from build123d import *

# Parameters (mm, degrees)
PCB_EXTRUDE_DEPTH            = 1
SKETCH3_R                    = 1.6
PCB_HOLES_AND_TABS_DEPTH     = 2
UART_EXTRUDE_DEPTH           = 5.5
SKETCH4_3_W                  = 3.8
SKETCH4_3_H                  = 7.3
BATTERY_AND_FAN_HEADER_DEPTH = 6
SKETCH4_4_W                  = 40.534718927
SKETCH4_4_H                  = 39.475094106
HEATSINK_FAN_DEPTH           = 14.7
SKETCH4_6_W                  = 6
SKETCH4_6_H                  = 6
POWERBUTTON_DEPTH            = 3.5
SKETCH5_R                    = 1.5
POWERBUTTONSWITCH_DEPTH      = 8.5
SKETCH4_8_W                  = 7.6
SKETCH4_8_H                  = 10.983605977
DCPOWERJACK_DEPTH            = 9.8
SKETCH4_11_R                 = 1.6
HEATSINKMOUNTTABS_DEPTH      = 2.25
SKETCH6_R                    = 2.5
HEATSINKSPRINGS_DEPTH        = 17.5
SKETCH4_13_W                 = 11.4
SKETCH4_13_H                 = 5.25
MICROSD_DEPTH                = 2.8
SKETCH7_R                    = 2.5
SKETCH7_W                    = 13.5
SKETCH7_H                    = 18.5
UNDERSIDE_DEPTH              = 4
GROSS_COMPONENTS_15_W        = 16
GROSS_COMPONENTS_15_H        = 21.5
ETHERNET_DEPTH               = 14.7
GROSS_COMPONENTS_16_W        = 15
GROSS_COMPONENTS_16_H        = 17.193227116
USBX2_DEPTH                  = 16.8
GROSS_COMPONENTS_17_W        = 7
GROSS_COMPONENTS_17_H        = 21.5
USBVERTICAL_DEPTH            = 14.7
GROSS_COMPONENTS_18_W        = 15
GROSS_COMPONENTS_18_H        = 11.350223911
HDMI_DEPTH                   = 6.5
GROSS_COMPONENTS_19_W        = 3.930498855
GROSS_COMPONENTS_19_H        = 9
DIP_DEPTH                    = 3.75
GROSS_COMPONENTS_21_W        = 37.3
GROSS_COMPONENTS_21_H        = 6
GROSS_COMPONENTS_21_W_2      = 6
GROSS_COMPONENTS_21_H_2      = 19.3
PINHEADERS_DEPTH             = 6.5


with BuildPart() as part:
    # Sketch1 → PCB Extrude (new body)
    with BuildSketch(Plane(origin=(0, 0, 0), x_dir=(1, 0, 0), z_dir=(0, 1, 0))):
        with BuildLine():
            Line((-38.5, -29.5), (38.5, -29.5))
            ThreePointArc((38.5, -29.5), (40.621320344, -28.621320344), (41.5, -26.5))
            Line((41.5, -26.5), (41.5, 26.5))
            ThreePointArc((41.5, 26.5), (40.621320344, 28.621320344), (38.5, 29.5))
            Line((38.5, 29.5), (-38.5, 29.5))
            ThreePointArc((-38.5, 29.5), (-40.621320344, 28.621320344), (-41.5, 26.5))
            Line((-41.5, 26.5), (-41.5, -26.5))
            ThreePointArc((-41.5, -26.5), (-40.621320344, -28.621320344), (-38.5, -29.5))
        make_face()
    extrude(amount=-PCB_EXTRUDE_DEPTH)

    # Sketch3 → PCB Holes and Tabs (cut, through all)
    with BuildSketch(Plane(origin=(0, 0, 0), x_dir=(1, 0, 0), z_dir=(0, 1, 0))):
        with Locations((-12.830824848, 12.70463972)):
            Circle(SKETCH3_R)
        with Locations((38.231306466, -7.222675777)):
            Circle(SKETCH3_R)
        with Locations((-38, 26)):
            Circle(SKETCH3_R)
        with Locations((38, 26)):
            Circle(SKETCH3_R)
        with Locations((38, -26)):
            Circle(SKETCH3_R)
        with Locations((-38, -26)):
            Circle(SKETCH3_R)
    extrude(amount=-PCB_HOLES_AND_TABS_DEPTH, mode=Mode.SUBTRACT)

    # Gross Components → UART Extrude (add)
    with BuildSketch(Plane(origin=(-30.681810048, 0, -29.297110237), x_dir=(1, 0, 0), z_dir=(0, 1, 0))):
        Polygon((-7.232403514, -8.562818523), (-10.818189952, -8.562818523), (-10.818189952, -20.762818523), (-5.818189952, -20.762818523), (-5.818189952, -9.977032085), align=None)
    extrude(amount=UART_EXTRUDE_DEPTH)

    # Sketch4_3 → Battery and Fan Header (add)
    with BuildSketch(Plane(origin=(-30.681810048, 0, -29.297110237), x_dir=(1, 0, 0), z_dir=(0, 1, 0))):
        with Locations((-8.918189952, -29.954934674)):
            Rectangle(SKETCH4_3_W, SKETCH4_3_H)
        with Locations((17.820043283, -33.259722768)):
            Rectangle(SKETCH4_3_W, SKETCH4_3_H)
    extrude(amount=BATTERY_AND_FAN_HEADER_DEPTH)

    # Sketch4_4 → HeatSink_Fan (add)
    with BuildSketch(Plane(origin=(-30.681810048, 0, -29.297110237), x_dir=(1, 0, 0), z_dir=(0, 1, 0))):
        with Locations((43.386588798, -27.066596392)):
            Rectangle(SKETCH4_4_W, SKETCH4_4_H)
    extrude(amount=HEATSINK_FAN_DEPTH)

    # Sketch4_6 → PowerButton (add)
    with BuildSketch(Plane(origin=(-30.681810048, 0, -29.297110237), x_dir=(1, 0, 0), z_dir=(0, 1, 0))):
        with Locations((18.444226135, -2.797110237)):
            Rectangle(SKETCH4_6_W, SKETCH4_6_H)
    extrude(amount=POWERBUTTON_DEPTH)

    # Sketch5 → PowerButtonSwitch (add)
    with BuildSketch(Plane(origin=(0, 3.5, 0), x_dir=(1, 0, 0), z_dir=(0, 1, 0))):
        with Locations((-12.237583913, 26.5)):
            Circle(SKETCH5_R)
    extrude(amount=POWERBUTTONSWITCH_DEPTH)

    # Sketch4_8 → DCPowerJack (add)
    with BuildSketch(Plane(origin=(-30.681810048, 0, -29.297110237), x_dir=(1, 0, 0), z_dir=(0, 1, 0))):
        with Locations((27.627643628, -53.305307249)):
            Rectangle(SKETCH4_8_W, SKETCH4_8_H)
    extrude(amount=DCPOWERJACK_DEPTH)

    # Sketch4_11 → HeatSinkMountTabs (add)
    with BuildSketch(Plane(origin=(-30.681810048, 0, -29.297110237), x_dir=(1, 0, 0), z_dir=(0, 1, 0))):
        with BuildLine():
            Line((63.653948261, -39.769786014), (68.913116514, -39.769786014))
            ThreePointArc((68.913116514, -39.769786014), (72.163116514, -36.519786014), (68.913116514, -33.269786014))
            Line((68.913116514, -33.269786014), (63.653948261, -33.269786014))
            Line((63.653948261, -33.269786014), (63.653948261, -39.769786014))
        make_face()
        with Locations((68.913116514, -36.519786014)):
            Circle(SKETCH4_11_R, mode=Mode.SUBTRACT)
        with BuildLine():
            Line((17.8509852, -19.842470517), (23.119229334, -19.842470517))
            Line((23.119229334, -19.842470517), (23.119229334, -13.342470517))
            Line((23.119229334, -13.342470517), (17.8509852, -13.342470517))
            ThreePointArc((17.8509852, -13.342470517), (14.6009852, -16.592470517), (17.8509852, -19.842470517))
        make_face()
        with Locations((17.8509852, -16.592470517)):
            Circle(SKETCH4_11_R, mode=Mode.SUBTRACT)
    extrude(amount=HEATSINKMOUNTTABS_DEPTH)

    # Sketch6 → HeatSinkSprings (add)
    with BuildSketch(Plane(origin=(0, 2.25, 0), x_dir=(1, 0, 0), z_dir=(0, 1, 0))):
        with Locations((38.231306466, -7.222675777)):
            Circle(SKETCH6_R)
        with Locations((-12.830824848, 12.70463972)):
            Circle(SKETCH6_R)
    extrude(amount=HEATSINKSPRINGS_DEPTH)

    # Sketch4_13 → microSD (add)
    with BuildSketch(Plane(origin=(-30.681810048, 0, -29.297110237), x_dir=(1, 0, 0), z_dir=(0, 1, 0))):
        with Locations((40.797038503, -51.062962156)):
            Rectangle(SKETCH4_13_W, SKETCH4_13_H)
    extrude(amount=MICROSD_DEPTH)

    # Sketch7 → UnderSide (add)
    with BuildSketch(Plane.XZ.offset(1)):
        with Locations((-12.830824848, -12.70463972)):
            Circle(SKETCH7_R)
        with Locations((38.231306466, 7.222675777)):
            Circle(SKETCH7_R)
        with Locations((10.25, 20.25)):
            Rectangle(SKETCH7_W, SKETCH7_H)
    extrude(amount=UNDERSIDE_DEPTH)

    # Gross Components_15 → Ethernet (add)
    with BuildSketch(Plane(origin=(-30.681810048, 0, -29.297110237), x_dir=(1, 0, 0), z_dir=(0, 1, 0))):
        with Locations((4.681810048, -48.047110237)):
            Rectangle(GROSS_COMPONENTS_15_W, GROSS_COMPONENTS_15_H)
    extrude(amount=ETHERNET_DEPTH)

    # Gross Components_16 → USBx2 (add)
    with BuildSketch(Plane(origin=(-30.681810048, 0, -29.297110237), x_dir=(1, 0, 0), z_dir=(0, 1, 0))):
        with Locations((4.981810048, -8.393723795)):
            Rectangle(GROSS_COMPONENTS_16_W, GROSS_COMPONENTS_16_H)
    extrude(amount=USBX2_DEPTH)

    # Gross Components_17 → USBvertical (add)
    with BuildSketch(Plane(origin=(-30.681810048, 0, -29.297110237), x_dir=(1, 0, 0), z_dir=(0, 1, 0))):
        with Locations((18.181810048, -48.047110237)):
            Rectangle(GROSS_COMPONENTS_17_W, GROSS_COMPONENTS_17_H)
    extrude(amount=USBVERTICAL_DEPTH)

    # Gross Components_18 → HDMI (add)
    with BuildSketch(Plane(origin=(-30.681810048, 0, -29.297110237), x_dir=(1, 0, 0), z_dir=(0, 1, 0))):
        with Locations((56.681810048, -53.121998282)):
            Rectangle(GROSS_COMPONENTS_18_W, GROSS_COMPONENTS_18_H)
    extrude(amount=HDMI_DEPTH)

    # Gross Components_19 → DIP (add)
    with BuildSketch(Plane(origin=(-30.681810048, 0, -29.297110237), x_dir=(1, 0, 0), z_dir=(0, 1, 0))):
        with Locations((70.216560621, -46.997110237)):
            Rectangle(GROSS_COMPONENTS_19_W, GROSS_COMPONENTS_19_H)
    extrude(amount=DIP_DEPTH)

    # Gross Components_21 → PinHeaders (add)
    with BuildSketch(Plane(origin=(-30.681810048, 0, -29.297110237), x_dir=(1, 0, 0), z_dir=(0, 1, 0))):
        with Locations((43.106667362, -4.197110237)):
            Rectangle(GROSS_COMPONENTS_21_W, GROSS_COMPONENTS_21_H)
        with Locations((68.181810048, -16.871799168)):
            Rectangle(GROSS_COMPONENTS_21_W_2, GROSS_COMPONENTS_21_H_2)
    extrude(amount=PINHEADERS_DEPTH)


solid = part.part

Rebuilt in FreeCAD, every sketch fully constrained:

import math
import FreeCAD as App
import Part
import Sketcher

V = App.Vector
Q = App.Units.Quantity

doc = App.newDocument("Part")
body = doc.addObject("PartDesign::Body", "Body")

# Sketch on XZ plane
sketch1 = doc.addObject("Sketcher::SketchObject", "Sketch")
body.addObject(sketch1)
sketch1.AttachmentSupport = (doc.XZ_Plane, [""])
sketch1.MapMode = "FlatFace"
sketch1.addGeometry(Part.LineSegment(V(-38.5, 29.5, 0), V(38.5, 29.5, 0)), False)
sketch1.addGeometry(Part.ArcOfCircle(Part.Circle(V(38.5, 26.5, 0), V(0, 0, 1), 3), math.radians(0), math.radians(90)), False)
sketch1.addGeometry(Part.LineSegment(V(41.5, 26.5, 0), V(41.5, -26.5, 0)), False)
sketch1.addGeometry(Part.ArcOfCircle(Part.Circle(V(38.5, -26.5, 0), V(0, 0, 1), 3), math.radians(-90), math.radians(0)), False)
sketch1.addGeometry(Part.LineSegment(V(38.5, -29.5, 0), V(-38.5, -29.5, 0)), False)
sketch1.addGeometry(Part.ArcOfCircle(Part.Circle(V(-38.5, -26.5, 0), V(0, 0, 1), 3), math.radians(180), math.radians(270)), False)
sketch1.addGeometry(Part.LineSegment(V(-41.5, -26.5, 0), V(-41.5, 26.5, 0)), False)
sketch1.addGeometry(Part.ArcOfCircle(Part.Circle(V(-38.5, 26.5, 0), V(0, 0, 1), 3), math.radians(90), math.radians(180)), False)
sketch1.addConstraint(Sketcher.Constraint("Tangent", 0, 2, 1, 2))
sketch1.addConstraint(Sketcher.Constraint("Tangent", 1, 1, 2, 1))
sketch1.addConstraint(Sketcher.Constraint("Tangent", 2, 2, 3, 2))
sketch1.addConstraint(Sketcher.Constraint("Tangent", 3, 1, 4, 1))
sketch1.addConstraint(Sketcher.Constraint("Tangent", 4, 2, 5, 2))
sketch1.addConstraint(Sketcher.Constraint("Tangent", 5, 1, 6, 1))
sketch1.addConstraint(Sketcher.Constraint("Tangent", 6, 2, 7, 2))
sketch1.addConstraint(Sketcher.Constraint("Tangent", 7, 1, 0, 1))
sketch1.addConstraint(Sketcher.Constraint("Horizontal", 0))
sketch1.addConstraint(Sketcher.Constraint("Vertical", 2))
sketch1.addConstraint(Sketcher.Constraint("Horizontal", 4))
sketch1.addConstraint(Sketcher.Constraint("Vertical", 6))
sketch1.addConstraint(Sketcher.Constraint("Equal", 1, 3))
sketch1.addConstraint(Sketcher.Constraint("Equal", 3, 5))
sketch1.addConstraint(Sketcher.Constraint("Equal", 5, 7))
sketch1.addConstraint(Sketcher.Constraint("Symmetric", 1, 3, 5, 3, -1, 1))
sketch1.addConstraint(Sketcher.Constraint("Radius", 1, 3.0))
sketch1.addConstraint(Sketcher.Constraint("DistanceX", 0, 1, 0, 2, 77.0))
sketch1.addConstraint(Sketcher.Constraint("DistanceY", 2, 2, 2, 1, 53.0))
pad1 = doc.addObject("PartDesign::Pad", "Pad")
body.addObject(pad1)
pad1.Profile = sketch1
pad1.Length = 1

# Sketch on XZ plane
sketch2 = doc.addObject("Sketcher::SketchObject", "Sketch001")
body.addObject(sketch2)
sketch2.AttachmentSupport = (doc.XZ_Plane, [""])
sketch2.MapMode = "FlatFace"
sketch2.addGeometry(Part.Circle(V(-12.8, -12.7, 0), V(0, 0, 1), 1.6), False)
sketch2.addGeometry(Part.Circle(V(38.2, 7.2, 0), V(0, 0, 1), 1.6), False)
sketch2.addGeometry(Part.Circle(V(-38, -26, 0), V(0, 0, 1), 1.6), False)
sketch2.addGeometry(Part.Circle(V(38, -26, 0), V(0, 0, 1), 1.6), False)
sketch2.addGeometry(Part.Circle(V(38, 26, 0), V(0, 0, 1), 1.6), False)
sketch2.addGeometry(Part.Circle(V(-38, 26, 0), V(0, 0, 1), 1.6), False)
sketch2.addConstraint(Sketcher.Constraint("Equal", 0, 1))
sketch2.addConstraint(Sketcher.Constraint("Equal", 1, 2))
sketch2.addConstraint(Sketcher.Constraint("Equal", 2, 3))
sketch2.addConstraint(Sketcher.Constraint("Equal", 3, 4))
sketch2.addConstraint(Sketcher.Constraint("Equal", 4, 5))
sketch2.addConstraint(Sketcher.Constraint("Symmetric", 2, 3, 4, 3, -1, 1))
sketch2.addConstraint(Sketcher.Constraint("Symmetric", 3, 3, 5, 3, -1, 1))
sketch2.addConstraint(Sketcher.Constraint("Symmetric", 2, 3, 3, 3, -2))
sketch2.addConstraint(Sketcher.Constraint("Diameter", 0, 3.2))
sketch2.addConstraint(Sketcher.Constraint("DistanceX", 2, 3, -1, 1, 38.0))
sketch2.addConstraint(Sketcher.Constraint("DistanceY", 2, 3, -1, 1, 26.0))
sketch2.addConstraint(Sketcher.Constraint("DistanceY", 0, 3, -1, 1, 12.70464))
sketch2.addConstraint(Sketcher.Constraint("DistanceX", 0, 3, 1, 3, 51.062131))
sketch2.addConstraint(Sketcher.Constraint("DistanceX", 0, 3, -1, 1, 12.830825))
sketch2.addConstraint(Sketcher.Constraint("DistanceY", -1, 1, 1, 3, 7.222676))
pocket1 = doc.addObject("PartDesign::Pocket", "Pocket")
body.addObject(pocket1)
pocket1.Profile = sketch2
pocket1.Type = "ThroughAll"
pocket1.Reversed = True

# Sketch on XZ plane
sketch3 = doc.addObject("Sketcher::SketchObject", "Sketch002")
body.addObject(sketch3)
sketch3.AttachmentSupport = (doc.XZ_Plane, [""])
sketch3.MapMode = "FlatFace"
sketch3.addGeometry(Part.LineSegment(V(-37.9, -20.7, 0), V(-41.5, -20.7, 0)), False)
sketch3.addGeometry(Part.LineSegment(V(-41.5, -20.7, 0), V(-41.5, -8.5, 0)), False)
sketch3.addGeometry(Part.LineSegment(V(-41.5, -8.5, 0), V(-36.5, -8.5, 0)), False)
sketch3.addGeometry(Part.LineSegment(V(-36.5, -8.5, 0), V(-36.5, -19.3, 0)), False)
sketch3.addGeometry(Part.LineSegment(V(-36.5, -19.3, 0), V(-37.9, -20.7, 0)), False)
sketch3.addConstraint(Sketcher.Constraint("Coincident", 0, 2, 1, 1))
sketch3.addConstraint(Sketcher.Constraint("Coincident", 1, 2, 2, 1))
sketch3.addConstraint(Sketcher.Constraint("Coincident", 2, 2, 3, 1))
sketch3.addConstraint(Sketcher.Constraint("Coincident", 3, 2, 4, 1))
sketch3.addConstraint(Sketcher.Constraint("Coincident", 4, 2, 0, 1))
sketch3.addConstraint(Sketcher.Constraint("Horizontal", 0))
sketch3.addConstraint(Sketcher.Constraint("Vertical", 1))
sketch3.addConstraint(Sketcher.Constraint("Horizontal", 2))
sketch3.addConstraint(Sketcher.Constraint("Vertical", 3))
sketch3.addConstraint(Sketcher.Constraint("DistanceX", 2, 1, 2, 2, 5.0))
sketch3.addConstraint(Sketcher.Constraint("Angle", 4, Q("-135 deg")))
sketch3.addConstraint(Sketcher.Constraint("Distance", 4, 2.0))
sketch3.addConstraint(Sketcher.Constraint("DistanceY", 1, 1, 1, 2, 12.2))
sketch3.addConstraint(Sketcher.Constraint("DistanceX", 0, 2, -1, 1, 41.5))
sketch3.addConstraint(Sketcher.Constraint("DistanceY", 0, 2, -1, 1, 20.734292))
pad2 = doc.addObject("PartDesign::Pad", "Pad001")
body.addObject(pad2)
pad2.Profile = sketch3
pad2.Length = 5.5
pad2.Reversed = True

# Sketch on XZ plane
sketch4 = doc.addObject("Sketcher::SketchObject", "Sketch003")
body.addObject(sketch4)
sketch4.AttachmentSupport = (doc.XZ_Plane, [""])
sketch4.MapMode = "FlatFace"
sketch4.addGeometry(Part.LineSegment(V(-41.5, -3, 0), V(-41.5, 4.3, 0)), False)
sketch4.addGeometry(Part.LineSegment(V(-41.5, 4.3, 0), V(-37.7, 4.3, 0)), False)
sketch4.addGeometry(Part.LineSegment(V(-37.7, 4.3, 0), V(-37.7, -3, 0)), False)
sketch4.addGeometry(Part.LineSegment(V(-37.7, -3, 0), V(-41.5, -3, 0)), False)
sketch4.addGeometry(Part.LineSegment(V(-14.8, 0.3, 0), V(-14.8, 7.6, 0)), False)
sketch4.addGeometry(Part.LineSegment(V(-14.8, 7.6, 0), V(-11, 7.6, 0)), False)
sketch4.addGeometry(Part.LineSegment(V(-11, 7.6, 0), V(-11, 0.3, 0)), False)
sketch4.addGeometry(Part.LineSegment(V(-11, 0.3, 0), V(-14.8, 0.3, 0)), False)
sketch4.addConstraint(Sketcher.Constraint("Coincident", 0, 2, 1, 1))
sketch4.addConstraint(Sketcher.Constraint("Coincident", 1, 2, 2, 1))
sketch4.addConstraint(Sketcher.Constraint("Coincident", 2, 2, 3, 1))
sketch4.addConstraint(Sketcher.Constraint("Coincident", 3, 2, 0, 1))
sketch4.addConstraint(Sketcher.Constraint("Coincident", 4, 2, 5, 1))
sketch4.addConstraint(Sketcher.Constraint("Coincident", 5, 2, 6, 1))
sketch4.addConstraint(Sketcher.Constraint("Coincident", 6, 2, 7, 1))
sketch4.addConstraint(Sketcher.Constraint("Coincident", 7, 2, 4, 1))
sketch4.addConstraint(Sketcher.Constraint("Vertical", 0))
sketch4.addConstraint(Sketcher.Constraint("Horizontal", 1))
sketch4.addConstraint(Sketcher.Constraint("Vertical", 2))
sketch4.addConstraint(Sketcher.Constraint("Horizontal", 3))
sketch4.addConstraint(Sketcher.Constraint("Vertical", 4))
sketch4.addConstraint(Sketcher.Constraint("Horizontal", 5))
sketch4.addConstraint(Sketcher.Constraint("Vertical", 6))
sketch4.addConstraint(Sketcher.Constraint("Horizontal", 7))
sketch4.addConstraint(Sketcher.Constraint("Equal", 3, 5))
sketch4.addConstraint(Sketcher.Constraint("Equal", 2, 4))
sketch4.addConstraint(Sketcher.Constraint("DistanceX", 1, 1, 1, 2, 3.8))
sketch4.addConstraint(Sketcher.Constraint("DistanceY", 0, 1, 0, 2, 7.3))
sketch4.addConstraint(Sketcher.Constraint("DistanceX", 0, 2, -1, 1, 41.5))
sketch4.addConstraint(Sketcher.Constraint("DistanceY", 1, 2, 4, 2, 3.304788))
sketch4.addConstraint(Sketcher.Constraint("DistanceY", -1, 1, 0, 2, 4.307824))
sketch4.addConstraint(Sketcher.Constraint("DistanceX", 4, 2, -1, 1, 14.761767))
pad3 = doc.addObject("PartDesign::Pad", "Pad002")
body.addObject(pad3)
pad3.Profile = sketch4
pad3.Length = 6
pad3.Reversed = True

# Sketch on XZ plane
sketch5 = doc.addObject("Sketcher::SketchObject", "Sketch004")
body.addObject(sketch5)
sketch5.AttachmentSupport = (doc.XZ_Plane, [""])
sketch5.MapMode = "FlatFace"
sketch5.addGeometry(Part.LineSegment(V(-8, -22, 0), V(-8, 18, 0)), False)
sketch5.addGeometry(Part.LineSegment(V(-8, 18, 0), V(33, 18, 0)), False)
sketch5.addGeometry(Part.LineSegment(V(33, 18, 0), V(33, -22, 0)), False)
sketch5.addGeometry(Part.LineSegment(V(33, -22, 0), V(-8, -22, 0)), False)
sketch5.addConstraint(Sketcher.Constraint("Coincident", 0, 2, 1, 1))
sketch5.addConstraint(Sketcher.Constraint("Coincident", 1, 2, 2, 1))
sketch5.addConstraint(Sketcher.Constraint("Coincident", 2, 2, 3, 1))
sketch5.addConstraint(Sketcher.Constraint("Coincident", 3, 2, 0, 1))
sketch5.addConstraint(Sketcher.Constraint("Vertical", 0))
sketch5.addConstraint(Sketcher.Constraint("Horizontal", 1))
sketch5.addConstraint(Sketcher.Constraint("Vertical", 2))
sketch5.addConstraint(Sketcher.Constraint("Horizontal", 3))
sketch5.addConstraint(Sketcher.Constraint("DistanceX", 1, 1, 1, 2, 40.534719))
sketch5.addConstraint(Sketcher.Constraint("DistanceY", 0, 1, 0, 2, 39.475094))
sketch5.addConstraint(Sketcher.Constraint("DistanceX", 0, 2, -1, 1, 7.562581))
sketch5.addConstraint(Sketcher.Constraint("DistanceY", 2, 2, -1, 1, 21.968061))
pad4 = doc.addObject("PartDesign::Pad", "Pad003")
body.addObject(pad4)
pad4.Profile = sketch5
pad4.Length = 14.7
pad4.Reversed = True

# Sketch on XZ plane
sketch6 = doc.addObject("Sketcher::SketchObject", "Sketch005")
body.addObject(sketch6)
sketch6.AttachmentSupport = (doc.XZ_Plane, [""])
sketch6.MapMode = "FlatFace"
sketch6.addGeometry(Part.LineSegment(V(-15, -30, 0), V(-15, -24, 0)), False)
sketch6.addGeometry(Part.LineSegment(V(-15, -24, 0), V(-9, -24, 0)), False)
sketch6.addGeometry(Part.LineSegment(V(-9, -24, 0), V(-9, -30, 0)), False)
sketch6.addGeometry(Part.LineSegment(V(-9, -30, 0), V(-15, -30, 0)), False)
sketch6.addConstraint(Sketcher.Constraint("Coincident", 0, 2, 1, 1))
sketch6.addConstraint(Sketcher.Constraint("Coincident", 1, 2, 2, 1))
sketch6.addConstraint(Sketcher.Constraint("Coincident", 2, 2, 3, 1))
sketch6.addConstraint(Sketcher.Constraint("Coincident", 3, 2, 0, 1))
sketch6.addConstraint(Sketcher.Constraint("Vertical", 0))
sketch6.addConstraint(Sketcher.Constraint("Horizontal", 1))
sketch6.addConstraint(Sketcher.Constraint("Vertical", 2))
sketch6.addConstraint(Sketcher.Constraint("Horizontal", 3))
sketch6.addConstraint(Sketcher.Constraint("Equal", 3, 0))
sketch6.addConstraint(Sketcher.Constraint("DistanceX", 1, 1, 1, 2, 6.0))
sketch6.addConstraint(Sketcher.Constraint("DistanceY", 0, 2, -1, 1, 23.5))
sketch6.addConstraint(Sketcher.Constraint("DistanceX", 0, 2, -1, 1, 15.237584))
pad5 = doc.addObject("PartDesign::Pad", "Pad004")
body.addObject(pad5)
pad5.Profile = sketch6
pad5.Length = 3.5
pad5.Reversed = True

# Sketch on XZ plane
sketch7 = doc.addObject("Sketcher::SketchObject", "Sketch006")
body.addObject(sketch7)
sketch7.AttachmentSupport = (doc.XZ_Plane, [""])
sketch7.MapMode = "FlatFace"
sketch7.AttachmentOffset = App.Placement(V(0, 0, -3.5), App.Rotation())
sketch7.addGeometry(Part.Circle(V(-12.2, -26.5, 0), V(0, 0, 1), 1.5), False)
sketch7.addConstraint(Sketcher.Constraint("Diameter", 0, 3.0))
sketch7.addConstraint(Sketcher.Constraint("DistanceY", 0, 3, -1, 1, 26.5))
sketch7.addConstraint(Sketcher.Constraint("DistanceX", 0, 3, -1, 1, 12.237584))
pad6 = doc.addObject("PartDesign::Pad", "Pad005")
body.addObject(pad6)
pad6.Profile = sketch7
pad6.Length = 8.5
pad6.Reversed = True

# Sketch on XZ plane
sketch8 = doc.addObject("Sketcher::SketchObject", "Sketch007")
body.addObject(sketch8)
sketch8.AttachmentSupport = (doc.XZ_Plane, [""])
sketch8.MapMode = "FlatFace"
sketch8.addGeometry(Part.LineSegment(V(-7, 19, 0), V(-7, 30, 0)), False)
sketch8.addGeometry(Part.LineSegment(V(-7, 30, 0), V(1, 30, 0)), False)
sketch8.addGeometry(Part.LineSegment(V(1, 30, 0), V(1, 19, 0)), False)
sketch8.addGeometry(Part.LineSegment(V(1, 19, 0), V(-7, 19, 0)), False)
sketch8.addConstraint(Sketcher.Constraint("Coincident", 0, 2, 1, 1))
sketch8.addConstraint(Sketcher.Constraint("Coincident", 1, 2, 2, 1))
sketch8.addConstraint(Sketcher.Constraint("Coincident", 2, 2, 3, 1))
sketch8.addConstraint(Sketcher.Constraint("Coincident", 3, 2, 0, 1))
sketch8.addConstraint(Sketcher.Constraint("Vertical", 0))
sketch8.addConstraint(Sketcher.Constraint("Horizontal", 1))
sketch8.addConstraint(Sketcher.Constraint("Vertical", 2))
sketch8.addConstraint(Sketcher.Constraint("Horizontal", 3))
sketch8.addConstraint(Sketcher.Constraint("DistanceX", 1, 1, 1, 2, 7.6))
sketch8.addConstraint(Sketcher.Constraint("DistanceY", -1, 1, 0, 2, 29.5))
sketch8.addConstraint(Sketcher.Constraint("DistanceY", 0, 1, 0, 2, 10.983606))
sketch8.addConstraint(Sketcher.Constraint("DistanceX", 0, 2, -1, 1, 6.854166))
pad7 = doc.addObject("PartDesign::Pad", "Pad006")
body.addObject(pad7)
pad7.Profile = sketch8
pad7.Length = 9.8
pad7.Reversed = True

# Sketch on XZ plane
sketch9 = doc.addObject("Sketcher::SketchObject", "Sketch008")
body.addObject(sketch9)
sketch9.AttachmentSupport = (doc.XZ_Plane, [""])
sketch9.MapMode = "FlatFace"
sketch9.addGeometry(Part.LineSegment(V(33, 10.5, 0), V(38.2, 10.5, 0)), False)
sketch9.addGeometry(Part.ArcOfCircle(Part.Circle(V(38.2, 7.2, 0), V(0, 0, 1), 3.2), math.radians(-90), math.radians(90)), False)
sketch9.addGeometry(Part.LineSegment(V(38.2, 4, 0), V(33, 4, 0)), False)
sketch9.addGeometry(Part.LineSegment(V(33, 4, 0), V(33, 10.5, 0)), False)
sketch9.addGeometry(Part.Circle(V(38.2, 7.2, 0), V(0, 0, 1), 1.6), False)
sketch9.addGeometry(Part.LineSegment(V(-12.8, -9.5, 0), V(-7.6, -9.5, 0)), False)
sketch9.addGeometry(Part.LineSegment(V(-7.6, -9.5, 0), V(-7.6, -16, 0)), False)
sketch9.addGeometry(Part.LineSegment(V(-7.6, -16, 0), V(-12.8, -16, 0)), False)
sketch9.addGeometry(Part.ArcOfCircle(Part.Circle(V(-12.8, -12.7, 0), V(0, 0, 1), 3.2), math.radians(90), math.radians(270)), False)
sketch9.addGeometry(Part.Circle(V(-12.8, -12.7, 0), V(0, 0, 1), 1.6), False)
sketch9.addConstraint(Sketcher.Constraint("Tangent", 0, 2, 1, 2))
sketch9.addConstraint(Sketcher.Constraint("Tangent", 1, 1, 2, 1))
sketch9.addConstraint(Sketcher.Constraint("Coincident", 2, 2, 3, 1))
sketch9.addConstraint(Sketcher.Constraint("Coincident", 3, 2, 0, 1))
sketch9.addConstraint(Sketcher.Constraint("Coincident", 5, 2, 6, 1))
sketch9.addConstraint(Sketcher.Constraint("Coincident", 6, 2, 7, 1))
sketch9.addConstraint(Sketcher.Constraint("Tangent", 7, 2, 8, 2))
sketch9.addConstraint(Sketcher.Constraint("Tangent", 8, 1, 5, 1))
sketch9.addConstraint(Sketcher.Constraint("Horizontal", 0))
sketch9.addConstraint(Sketcher.Constraint("Horizontal", 2))
sketch9.addConstraint(Sketcher.Constraint("Vertical", 3))
sketch9.addConstraint(Sketcher.Constraint("Horizontal", 5))
sketch9.addConstraint(Sketcher.Constraint("Vertical", 6))
sketch9.addConstraint(Sketcher.Constraint("Horizontal", 7))
sketch9.addConstraint(Sketcher.Constraint("Coincident", 4, 3, 1, 3))
sketch9.addConstraint(Sketcher.Constraint("Coincident", 9, 3, 8, 3))
sketch9.addConstraint(Sketcher.Constraint("Equal", 1, 8))
sketch9.addConstraint(Sketcher.Constraint("Equal", 4, 9))
sketch9.addConstraint(Sketcher.Constraint("Diameter", 4, 3.2))
sketch9.addConstraint(Sketcher.Constraint("Radius", 1, 3.25))
sketch9.addConstraint(Sketcher.Constraint("DistanceX", 0, 1, 0, 2, 5.259168))
sketch9.addConstraint(Sketcher.Constraint("DistanceX", 5, 1, 5, 2, 5.268244))
sketch9.addConstraint(Sketcher.Constraint("DistanceY", 8, 3, -1, 1, 12.70464))
sketch9.addConstraint(Sketcher.Constraint("DistanceX", -1, 1, 2, 2, 32.972138))
sketch9.addConstraint(Sketcher.Constraint("DistanceX", 5, 2, -1, 1, 7.562581))
sketch9.addConstraint(Sketcher.Constraint("DistanceY", -1, 1, 1, 3, 7.222676))
pad8 = doc.addObject("PartDesign::Pad", "Pad007")
body.addObject(pad8)
pad8.Profile = sketch9
pad8.Length = 2.25
pad8.Reversed = True

# Sketch on XZ plane
sketch10 = doc.addObject("Sketcher::SketchObject", "Sketch009")
body.addObject(sketch10)
sketch10.AttachmentSupport = (doc.XZ_Plane, [""])
sketch10.MapMode = "FlatFace"
sketch10.AttachmentOffset = App.Placement(V(0, 0, -2.25), App.Rotation())
sketch10.addGeometry(Part.Circle(V(38.2, 7.2, 0), V(0, 0, 1), 2.5), False)
sketch10.addGeometry(Part.Circle(V(-12.8, -12.7, 0), V(0, 0, 1), 2.5), False)
sketch10.addConstraint(Sketcher.Constraint("Equal", 0, 1))
sketch10.addConstraint(Sketcher.Constraint("Diameter", 0, 5.0))
sketch10.addConstraint(Sketcher.Constraint("DistanceY", 1, 3, -1, 1, 12.70464))
sketch10.addConstraint(Sketcher.Constraint("DistanceX", 1, 3, 0, 3, 51.062131))
sketch10.addConstraint(Sketcher.Constraint("DistanceX", -1, 1, 0, 3, 38.231306))
sketch10.addConstraint(Sketcher.Constraint("DistanceY", -1, 1, 0, 3, 7.222676))
pad9 = doc.addObject("PartDesign::Pad", "Pad008")
body.addObject(pad9)
pad9.Profile = sketch10
pad9.Length = 17.5
pad9.Reversed = True

# Sketch on XZ plane
sketch11 = doc.addObject("Sketcher::SketchObject", "Sketch010")
body.addObject(sketch11)
sketch11.AttachmentSupport = (doc.XZ_Plane, [""])
sketch11.MapMode = "FlatFace"
sketch11.addGeometry(Part.LineSegment(V(4, 19, 0), V(4, 24, 0)), False)
sketch11.addGeometry(Part.LineSegment(V(4, 24, 0), V(16, 24, 0)), False)
sketch11.addGeometry(Part.LineSegment(V(16, 24, 0), V(16, 19, 0)), False)
sketch11.addGeometry(Part.LineSegment(V(16, 19, 0), V(4, 19, 0)), False)
sketch11.addConstraint(Sketcher.Constraint("Coincident", 0, 2, 1, 1))
sketch11.addConstraint(Sketcher.Constraint("Coincident", 1, 2, 2, 1))
sketch11.addConstraint(Sketcher.Constraint("Coincident", 2, 2, 3, 1))
sketch11.addConstraint(Sketcher.Constraint("Coincident", 3, 2, 0, 1))
sketch11.addConstraint(Sketcher.Constraint("Vertical", 0))
sketch11.addConstraint(Sketcher.Constraint("Horizontal", 1))
sketch11.addConstraint(Sketcher.Constraint("Vertical", 2))
sketch11.addConstraint(Sketcher.Constraint("Horizontal", 3))
sketch11.addConstraint(Sketcher.Constraint("DistanceX", 1, 1, 1, 2, 11.4))
sketch11.addConstraint(Sketcher.Constraint("DistanceY", 0, 1, 0, 2, 5.25))
sketch11.addConstraint(Sketcher.Constraint("DistanceX", -1, 1, 0, 2, 4.415228))
sketch11.addConstraint(Sketcher.Constraint("DistanceY", -1, 1, 0, 2, 24.390852))
pad10 = doc.addObject("PartDesign::Pad", "Pad009")
body.addObject(pad10)
pad10.Profile = sketch11
pad10.Length = 2.8
pad10.Reversed = True

# Sketch on XZ plane
sketch12 = doc.addObject("Sketcher::SketchObject", "Sketch011")
body.addObject(sketch12)
sketch12.AttachmentSupport = (doc.XZ_Plane, [""])
sketch12.MapMode = "FlatFace"
sketch12.AttachmentOffset = App.Placement(V(0, 0, 1), App.Rotation())
sketch12.addGeometry(Part.Circle(V(-12.8, -12.7, 0), V(0, 0, 1), 2.5), False)
sketch12.addGeometry(Part.Circle(V(38.2, 7.2, 0), V(0, 0, 1), 2.5), False)
sketch12.addGeometry(Part.LineSegment(V(3.5, 29.5, 0), V(3.5, 11, 0)), False)
sketch12.addGeometry(Part.LineSegment(V(3.5, 11, 0), V(17, 11, 0)), False)
sketch12.addGeometry(Part.LineSegment(V(17, 11, 0), V(17, 29.5, 0)), False)
sketch12.addGeometry(Part.LineSegment(V(17, 29.5, 0), V(3.5, 29.5, 0)), False)
sketch12.addConstraint(Sketcher.Constraint("Coincident", 2, 2, 3, 1))
sketch12.addConstraint(Sketcher.Constraint("Coincident", 3, 2, 4, 1))
sketch12.addConstraint(Sketcher.Constraint("Coincident", 4, 2, 5, 1))
sketch12.addConstraint(Sketcher.Constraint("Coincident", 5, 2, 2, 1))
sketch12.addConstraint(Sketcher.Constraint("Vertical", 2))
sketch12.addConstraint(Sketcher.Constraint("Horizontal", 3))
sketch12.addConstraint(Sketcher.Constraint("Vertical", 4))
sketch12.addConstraint(Sketcher.Constraint("Horizontal", 5))
sketch12.addConstraint(Sketcher.Constraint("Equal", 0, 1))
sketch12.addConstraint(Sketcher.Constraint("Diameter", 0, 5.0))
sketch12.addConstraint(Sketcher.Constraint("DistanceX", 3, 1, 3, 2, 13.5))
sketch12.addConstraint(Sketcher.Constraint("DistanceY", 2, 2, 2, 1, 18.5))
sketch12.addConstraint(Sketcher.Constraint("DistanceY", -1, 1, 2, 2, 11.0))
sketch12.addConstraint(Sketcher.Constraint("DistanceX", -1, 1, 3, 2, 17.0))
sketch12.addConstraint(Sketcher.Constraint("DistanceY", 0, 3, -1, 1, 12.70464))
sketch12.addConstraint(Sketcher.Constraint("DistanceX", 0, 3, 1, 3, 51.062131))
sketch12.addConstraint(Sketcher.Constraint("DistanceX", 0, 3, -1, 1, 12.830825))
sketch12.addConstraint(Sketcher.Constraint("DistanceY", -1, 1, 1, 3, 7.222676))
pad11 = doc.addObject("PartDesign::Pad", "Pad010")
body.addObject(pad11)
pad11.Profile = sketch12
pad11.Length = 4

# Sketch on XZ plane
sketch13 = doc.addObject("Sketcher::SketchObject", "Sketch012")
body.addObject(sketch13)
sketch13.AttachmentSupport = (doc.XZ_Plane, [""])
sketch13.MapMode = "FlatFace"
sketch13.addGeometry(Part.LineSegment(V(-34, 8, 0), V(-34, 30, 0)), False)
sketch13.addGeometry(Part.LineSegment(V(-34, 30, 0), V(-18, 30, 0)), False)
sketch13.addGeometry(Part.LineSegment(V(-18, 30, 0), V(-18, 8, 0)), False)
sketch13.addGeometry(Part.LineSegment(V(-18, 8, 0), V(-34, 8, 0)), False)
sketch13.addConstraint(Sketcher.Constraint("Coincident", 0, 2, 1, 1))
sketch13.addConstraint(Sketcher.Constraint("Coincident", 1, 2, 2, 1))
sketch13.addConstraint(Sketcher.Constraint("Coincident", 2, 2, 3, 1))
sketch13.addConstraint(Sketcher.Constraint("Coincident", 3, 2, 0, 1))
sketch13.addConstraint(Sketcher.Constraint("Vertical", 0))
sketch13.addConstraint(Sketcher.Constraint("Horizontal", 1))
sketch13.addConstraint(Sketcher.Constraint("Vertical", 2))
sketch13.addConstraint(Sketcher.Constraint("Horizontal", 3))
sketch13.addConstraint(Sketcher.Constraint("DistanceX", 1, 1, 1, 2, 16.0))
sketch13.addConstraint(Sketcher.Constraint("DistanceY", 0, 1, 0, 2, 21.5))
sketch13.addConstraint(Sketcher.Constraint("DistanceX", 0, 2, -1, 1, 34.0))
sketch13.addConstraint(Sketcher.Constraint("DistanceY", -1, 1, 2, 2, 8.0))
pad12 = doc.addObject("PartDesign::Pad", "Pad011")
body.addObject(pad12)
pad12.Profile = sketch13
pad12.Length = 14.7
pad12.Reversed = True

# Sketch on XZ plane
sketch14 = doc.addObject("Sketcher::SketchObject", "Sketch013")
body.addObject(sketch14)
sketch14.AttachmentSupport = (doc.XZ_Plane, [""])
sketch14.MapMode = "FlatFace"
sketch14.addGeometry(Part.LineSegment(V(-33, -30, 0), V(-33, -12, 0)), False)
sketch14.addGeometry(Part.LineSegment(V(-33, -12, 0), V(-18, -12, 0)), False)
sketch14.addGeometry(Part.LineSegment(V(-18, -12, 0), V(-18, -30, 0)), False)
sketch14.addGeometry(Part.LineSegment(V(-18, -30, 0), V(-33, -30, 0)), False)
sketch14.addConstraint(Sketcher.Constraint("Coincident", 0, 2, 1, 1))
sketch14.addConstraint(Sketcher.Constraint("Coincident", 1, 2, 2, 1))
sketch14.addConstraint(Sketcher.Constraint("Coincident", 2, 2, 3, 1))
sketch14.addConstraint(Sketcher.Constraint("Coincident", 3, 2, 0, 1))
sketch14.addConstraint(Sketcher.Constraint("Vertical", 0))
sketch14.addConstraint(Sketcher.Constraint("Horizontal", 1))
sketch14.addConstraint(Sketcher.Constraint("Vertical", 2))
sketch14.addConstraint(Sketcher.Constraint("Horizontal", 3))
sketch14.addConstraint(Sketcher.Constraint("DistanceX", 1, 1, 1, 2, 15.0))
sketch14.addConstraint(Sketcher.Constraint("DistanceX", 0, 2, -1, 1, 33.2))
sketch14.addConstraint(Sketcher.Constraint("DistanceY", 2, 2, -1, 1, 29.5))
sketch14.addConstraint(Sketcher.Constraint("DistanceY", 0, 1, 0, 2, 17.193227))
pad13 = doc.addObject("PartDesign::Pad", "Pad012")
body.addObject(pad13)
pad13.Profile = sketch14
pad13.Length = 16.8
pad13.Reversed = True

# Sketch on XZ plane
sketch15 = doc.addObject("Sketcher::SketchObject", "Sketch014")
body.addObject(sketch15)
sketch15.AttachmentSupport = (doc.XZ_Plane, [""])
sketch15.MapMode = "FlatFace"
sketch15.addGeometry(Part.LineSegment(V(-16, 8, 0), V(-16, 30, 0)), False)
sketch15.addGeometry(Part.LineSegment(V(-16, 30, 0), V(-9, 30, 0)), False)
sketch15.addGeometry(Part.LineSegment(V(-9, 30, 0), V(-9, 8, 0)), False)
sketch15.addGeometry(Part.LineSegment(V(-9, 8, 0), V(-16, 8, 0)), False)
sketch15.addConstraint(Sketcher.Constraint("Coincident", 0, 2, 1, 1))
sketch15.addConstraint(Sketcher.Constraint("Coincident", 1, 2, 2, 1))
sketch15.addConstraint(Sketcher.Constraint("Coincident", 2, 2, 3, 1))
sketch15.addConstraint(Sketcher.Constraint("Coincident", 3, 2, 0, 1))
sketch15.addConstraint(Sketcher.Constraint("Vertical", 0))
sketch15.addConstraint(Sketcher.Constraint("Horizontal", 1))
sketch15.addConstraint(Sketcher.Constraint("Vertical", 2))
sketch15.addConstraint(Sketcher.Constraint("Horizontal", 3))
sketch15.addConstraint(Sketcher.Constraint("DistanceX", 1, 1, 1, 2, 7.0))
sketch15.addConstraint(Sketcher.Constraint("DistanceY", 0, 1, 0, 2, 21.5))
sketch15.addConstraint(Sketcher.Constraint("DistanceX", 0, 2, -1, 1, 16.0))
sketch15.addConstraint(Sketcher.Constraint("DistanceY", -1, 1, 2, 2, 8.0))
pad14 = doc.addObject("PartDesign::Pad", "Pad013")
body.addObject(pad14)
pad14.Profile = sketch15
pad14.Length = 14.7
pad14.Reversed = True

# Sketch on XZ plane
sketch16 = doc.addObject("Sketcher::SketchObject", "Sketch015")
body.addObject(sketch16)
sketch16.AttachmentSupport = (doc.XZ_Plane, [""])
sketch16.MapMode = "FlatFace"
sketch16.addGeometry(Part.LineSegment(V(18, 18, 0), V(18, 30, 0)), False)
sketch16.addGeometry(Part.LineSegment(V(18, 30, 0), V(34, 30, 0)), False)
sketch16.addGeometry(Part.LineSegment(V(34, 30, 0), V(34, 18, 0)), False)
sketch16.addGeometry(Part.LineSegment(V(34, 18, 0), V(18, 18, 0)), False)
sketch16.addConstraint(Sketcher.Constraint("Coincident", 0, 2, 1, 1))
sketch16.addConstraint(Sketcher.Constraint("Coincident", 1, 2, 2, 1))
sketch16.addConstraint(Sketcher.Constraint("Coincident", 2, 2, 3, 1))
sketch16.addConstraint(Sketcher.Constraint("Coincident", 3, 2, 0, 1))
sketch16.addConstraint(Sketcher.Constraint("Vertical", 0))
sketch16.addConstraint(Sketcher.Constraint("Horizontal", 1))
sketch16.addConstraint(Sketcher.Constraint("Vertical", 2))
sketch16.addConstraint(Sketcher.Constraint("Horizontal", 3))
sketch16.addConstraint(Sketcher.Constraint("DistanceX", 1, 1, 1, 2, 15.0))
sketch16.addConstraint(Sketcher.Constraint("DistanceX", -1, 1, 0, 2, 18.5))
sketch16.addConstraint(Sketcher.Constraint("DistanceY", -1, 1, 0, 2, 29.5))
sketch16.addConstraint(Sketcher.Constraint("DistanceY", 0, 1, 0, 2, 11.350224))
pad15 = doc.addObject("PartDesign::Pad", "Pad014")
body.addObject(pad15)
pad15.Profile = sketch16
pad15.Length = 6.5
pad15.Reversed = True

# Sketch on XZ plane
sketch17 = doc.addObject("Sketcher::SketchObject", "Sketch016")
body.addObject(sketch17)
sketch17.AttachmentSupport = (doc.XZ_Plane, [""])
sketch17.MapMode = "FlatFace"
sketch17.addGeometry(Part.LineSegment(V(37.6, 13.2, 0), V(37.6, 22.2, 0)), False)
sketch17.addGeometry(Part.LineSegment(V(37.6, 22.2, 0), V(41.5, 22.2, 0)), False)
sketch17.addGeometry(Part.LineSegment(V(41.5, 22.2, 0), V(41.5, 13.2, 0)), False)
sketch17.addGeometry(Part.LineSegment(V(41.5, 13.2, 0), V(37.6, 13.2, 0)), False)
sketch17.addConstraint(Sketcher.Constraint("Coincident", 0, 2, 1, 1))
sketch17.addConstraint(Sketcher.Constraint("Coincident", 1, 2, 2, 1))
sketch17.addConstraint(Sketcher.Constraint("Coincident", 2, 2, 3, 1))
sketch17.addConstraint(Sketcher.Constraint("Coincident", 3, 2, 0, 1))
sketch17.addConstraint(Sketcher.Constraint("Vertical", 0))
sketch17.addConstraint(Sketcher.Constraint("Horizontal", 1))
sketch17.addConstraint(Sketcher.Constraint("Vertical", 2))
sketch17.addConstraint(Sketcher.Constraint("Horizontal", 3))
sketch17.addConstraint(Sketcher.Constraint("DistanceY", 0, 1, 0, 2, 9.0))
sketch17.addConstraint(Sketcher.Constraint("DistanceY", -1, 1, 0, 2, 22.2))
sketch17.addConstraint(Sketcher.Constraint("DistanceX", -1, 1, 1, 2, 41.5))
sketch17.addConstraint(Sketcher.Constraint("DistanceX", 1, 1, 1, 2, 3.930499))
pad16 = doc.addObject("PartDesign::Pad", "Pad015")
body.addObject(pad16)
pad16.Profile = sketch17
pad16.Length = 3.75
pad16.Reversed = True

# Sketch on XZ plane
sketch18 = doc.addObject("Sketcher::SketchObject", "Sketch017")
body.addObject(sketch18)
sketch18.AttachmentSupport = (doc.XZ_Plane, [""])
sketch18.MapMode = "FlatFace"
sketch18.addGeometry(Part.LineSegment(V(-6, -28, 0), V(-6, -22, 0)), False)
sketch18.addGeometry(Part.LineSegment(V(-6, -22, 0), V(31, -22, 0)), False)
sketch18.addGeometry(Part.LineSegment(V(31, -22, 0), V(31, -28, 0)), False)
sketch18.addGeometry(Part.LineSegment(V(31, -28, 0), V(-6, -28, 0)), False)
sketch18.addGeometry(Part.LineSegment(V(34, -22, 0), V(34, -3, 0)), False)
sketch18.addGeometry(Part.LineSegment(V(34, -3, 0), V(40, -3, 0)), False)
sketch18.addGeometry(Part.LineSegment(V(40, -3, 0), V(40, -22, 0)), False)
sketch18.addGeometry(Part.LineSegment(V(40, -22, 0), V(34, -22, 0)), False)
sketch18.addConstraint(Sketcher.Constraint("Coincident", 0, 2, 1, 1))
sketch18.addConstraint(Sketcher.Constraint("Coincident", 1, 2, 2, 1))
sketch18.addConstraint(Sketcher.Constraint("Coincident", 2, 2, 3, 1))
sketch18.addConstraint(Sketcher.Constraint("Coincident", 3, 2, 0, 1))
sketch18.addConstraint(Sketcher.Constraint("Coincident", 4, 2, 5, 1))
sketch18.addConstraint(Sketcher.Constraint("Coincident", 5, 2, 6, 1))
sketch18.addConstraint(Sketcher.Constraint("Coincident", 6, 2, 7, 1))
sketch18.addConstraint(Sketcher.Constraint("Coincident", 7, 2, 4, 1))
sketch18.addConstraint(Sketcher.Constraint("Vertical", 0))
sketch18.addConstraint(Sketcher.Constraint("Horizontal", 1))
sketch18.addConstraint(Sketcher.Constraint("Vertical", 2))
sketch18.addConstraint(Sketcher.Constraint("Horizontal", 3))
sketch18.addConstraint(Sketcher.Constraint("Vertical", 4))
sketch18.addConstraint(Sketcher.Constraint("Horizontal", 5))
sketch18.addConstraint(Sketcher.Constraint("Vertical", 6))
sketch18.addConstraint(Sketcher.Constraint("Horizontal", 7))
sketch18.addConstraint(Sketcher.Constraint("Equal", 7, 0))
sketch18.addConstraint(Sketcher.Constraint("DistanceX", 5, 1, 5, 2, 6.0))
sketch18.addConstraint(Sketcher.Constraint("DistanceX", 1, 1, 1, 2, 37.3))
sketch18.addConstraint(Sketcher.Constraint("DistanceY", 4, 1, 4, 2, 19.3))
sketch18.addConstraint(Sketcher.Constraint("DistanceY", 0, 2, -1, 1, 22.1))
sketch18.addConstraint(Sketcher.Constraint("DistanceX", -1, 1, 4, 2, 34.5))
sketch18.addConstraint(Sketcher.Constraint("DistanceY", 4, 2, -1, 1, 2.775311))
sketch18.addConstraint(Sketcher.Constraint("DistanceX", 0, 2, -1, 1, 6.225143))
pad17 = doc.addObject("PartDesign::Pad", "Pad016")
body.addObject(pad17)
pad17.Profile = sketch18
pad17.Length = 6.5
pad17.Reversed = True

doc.recompute()
